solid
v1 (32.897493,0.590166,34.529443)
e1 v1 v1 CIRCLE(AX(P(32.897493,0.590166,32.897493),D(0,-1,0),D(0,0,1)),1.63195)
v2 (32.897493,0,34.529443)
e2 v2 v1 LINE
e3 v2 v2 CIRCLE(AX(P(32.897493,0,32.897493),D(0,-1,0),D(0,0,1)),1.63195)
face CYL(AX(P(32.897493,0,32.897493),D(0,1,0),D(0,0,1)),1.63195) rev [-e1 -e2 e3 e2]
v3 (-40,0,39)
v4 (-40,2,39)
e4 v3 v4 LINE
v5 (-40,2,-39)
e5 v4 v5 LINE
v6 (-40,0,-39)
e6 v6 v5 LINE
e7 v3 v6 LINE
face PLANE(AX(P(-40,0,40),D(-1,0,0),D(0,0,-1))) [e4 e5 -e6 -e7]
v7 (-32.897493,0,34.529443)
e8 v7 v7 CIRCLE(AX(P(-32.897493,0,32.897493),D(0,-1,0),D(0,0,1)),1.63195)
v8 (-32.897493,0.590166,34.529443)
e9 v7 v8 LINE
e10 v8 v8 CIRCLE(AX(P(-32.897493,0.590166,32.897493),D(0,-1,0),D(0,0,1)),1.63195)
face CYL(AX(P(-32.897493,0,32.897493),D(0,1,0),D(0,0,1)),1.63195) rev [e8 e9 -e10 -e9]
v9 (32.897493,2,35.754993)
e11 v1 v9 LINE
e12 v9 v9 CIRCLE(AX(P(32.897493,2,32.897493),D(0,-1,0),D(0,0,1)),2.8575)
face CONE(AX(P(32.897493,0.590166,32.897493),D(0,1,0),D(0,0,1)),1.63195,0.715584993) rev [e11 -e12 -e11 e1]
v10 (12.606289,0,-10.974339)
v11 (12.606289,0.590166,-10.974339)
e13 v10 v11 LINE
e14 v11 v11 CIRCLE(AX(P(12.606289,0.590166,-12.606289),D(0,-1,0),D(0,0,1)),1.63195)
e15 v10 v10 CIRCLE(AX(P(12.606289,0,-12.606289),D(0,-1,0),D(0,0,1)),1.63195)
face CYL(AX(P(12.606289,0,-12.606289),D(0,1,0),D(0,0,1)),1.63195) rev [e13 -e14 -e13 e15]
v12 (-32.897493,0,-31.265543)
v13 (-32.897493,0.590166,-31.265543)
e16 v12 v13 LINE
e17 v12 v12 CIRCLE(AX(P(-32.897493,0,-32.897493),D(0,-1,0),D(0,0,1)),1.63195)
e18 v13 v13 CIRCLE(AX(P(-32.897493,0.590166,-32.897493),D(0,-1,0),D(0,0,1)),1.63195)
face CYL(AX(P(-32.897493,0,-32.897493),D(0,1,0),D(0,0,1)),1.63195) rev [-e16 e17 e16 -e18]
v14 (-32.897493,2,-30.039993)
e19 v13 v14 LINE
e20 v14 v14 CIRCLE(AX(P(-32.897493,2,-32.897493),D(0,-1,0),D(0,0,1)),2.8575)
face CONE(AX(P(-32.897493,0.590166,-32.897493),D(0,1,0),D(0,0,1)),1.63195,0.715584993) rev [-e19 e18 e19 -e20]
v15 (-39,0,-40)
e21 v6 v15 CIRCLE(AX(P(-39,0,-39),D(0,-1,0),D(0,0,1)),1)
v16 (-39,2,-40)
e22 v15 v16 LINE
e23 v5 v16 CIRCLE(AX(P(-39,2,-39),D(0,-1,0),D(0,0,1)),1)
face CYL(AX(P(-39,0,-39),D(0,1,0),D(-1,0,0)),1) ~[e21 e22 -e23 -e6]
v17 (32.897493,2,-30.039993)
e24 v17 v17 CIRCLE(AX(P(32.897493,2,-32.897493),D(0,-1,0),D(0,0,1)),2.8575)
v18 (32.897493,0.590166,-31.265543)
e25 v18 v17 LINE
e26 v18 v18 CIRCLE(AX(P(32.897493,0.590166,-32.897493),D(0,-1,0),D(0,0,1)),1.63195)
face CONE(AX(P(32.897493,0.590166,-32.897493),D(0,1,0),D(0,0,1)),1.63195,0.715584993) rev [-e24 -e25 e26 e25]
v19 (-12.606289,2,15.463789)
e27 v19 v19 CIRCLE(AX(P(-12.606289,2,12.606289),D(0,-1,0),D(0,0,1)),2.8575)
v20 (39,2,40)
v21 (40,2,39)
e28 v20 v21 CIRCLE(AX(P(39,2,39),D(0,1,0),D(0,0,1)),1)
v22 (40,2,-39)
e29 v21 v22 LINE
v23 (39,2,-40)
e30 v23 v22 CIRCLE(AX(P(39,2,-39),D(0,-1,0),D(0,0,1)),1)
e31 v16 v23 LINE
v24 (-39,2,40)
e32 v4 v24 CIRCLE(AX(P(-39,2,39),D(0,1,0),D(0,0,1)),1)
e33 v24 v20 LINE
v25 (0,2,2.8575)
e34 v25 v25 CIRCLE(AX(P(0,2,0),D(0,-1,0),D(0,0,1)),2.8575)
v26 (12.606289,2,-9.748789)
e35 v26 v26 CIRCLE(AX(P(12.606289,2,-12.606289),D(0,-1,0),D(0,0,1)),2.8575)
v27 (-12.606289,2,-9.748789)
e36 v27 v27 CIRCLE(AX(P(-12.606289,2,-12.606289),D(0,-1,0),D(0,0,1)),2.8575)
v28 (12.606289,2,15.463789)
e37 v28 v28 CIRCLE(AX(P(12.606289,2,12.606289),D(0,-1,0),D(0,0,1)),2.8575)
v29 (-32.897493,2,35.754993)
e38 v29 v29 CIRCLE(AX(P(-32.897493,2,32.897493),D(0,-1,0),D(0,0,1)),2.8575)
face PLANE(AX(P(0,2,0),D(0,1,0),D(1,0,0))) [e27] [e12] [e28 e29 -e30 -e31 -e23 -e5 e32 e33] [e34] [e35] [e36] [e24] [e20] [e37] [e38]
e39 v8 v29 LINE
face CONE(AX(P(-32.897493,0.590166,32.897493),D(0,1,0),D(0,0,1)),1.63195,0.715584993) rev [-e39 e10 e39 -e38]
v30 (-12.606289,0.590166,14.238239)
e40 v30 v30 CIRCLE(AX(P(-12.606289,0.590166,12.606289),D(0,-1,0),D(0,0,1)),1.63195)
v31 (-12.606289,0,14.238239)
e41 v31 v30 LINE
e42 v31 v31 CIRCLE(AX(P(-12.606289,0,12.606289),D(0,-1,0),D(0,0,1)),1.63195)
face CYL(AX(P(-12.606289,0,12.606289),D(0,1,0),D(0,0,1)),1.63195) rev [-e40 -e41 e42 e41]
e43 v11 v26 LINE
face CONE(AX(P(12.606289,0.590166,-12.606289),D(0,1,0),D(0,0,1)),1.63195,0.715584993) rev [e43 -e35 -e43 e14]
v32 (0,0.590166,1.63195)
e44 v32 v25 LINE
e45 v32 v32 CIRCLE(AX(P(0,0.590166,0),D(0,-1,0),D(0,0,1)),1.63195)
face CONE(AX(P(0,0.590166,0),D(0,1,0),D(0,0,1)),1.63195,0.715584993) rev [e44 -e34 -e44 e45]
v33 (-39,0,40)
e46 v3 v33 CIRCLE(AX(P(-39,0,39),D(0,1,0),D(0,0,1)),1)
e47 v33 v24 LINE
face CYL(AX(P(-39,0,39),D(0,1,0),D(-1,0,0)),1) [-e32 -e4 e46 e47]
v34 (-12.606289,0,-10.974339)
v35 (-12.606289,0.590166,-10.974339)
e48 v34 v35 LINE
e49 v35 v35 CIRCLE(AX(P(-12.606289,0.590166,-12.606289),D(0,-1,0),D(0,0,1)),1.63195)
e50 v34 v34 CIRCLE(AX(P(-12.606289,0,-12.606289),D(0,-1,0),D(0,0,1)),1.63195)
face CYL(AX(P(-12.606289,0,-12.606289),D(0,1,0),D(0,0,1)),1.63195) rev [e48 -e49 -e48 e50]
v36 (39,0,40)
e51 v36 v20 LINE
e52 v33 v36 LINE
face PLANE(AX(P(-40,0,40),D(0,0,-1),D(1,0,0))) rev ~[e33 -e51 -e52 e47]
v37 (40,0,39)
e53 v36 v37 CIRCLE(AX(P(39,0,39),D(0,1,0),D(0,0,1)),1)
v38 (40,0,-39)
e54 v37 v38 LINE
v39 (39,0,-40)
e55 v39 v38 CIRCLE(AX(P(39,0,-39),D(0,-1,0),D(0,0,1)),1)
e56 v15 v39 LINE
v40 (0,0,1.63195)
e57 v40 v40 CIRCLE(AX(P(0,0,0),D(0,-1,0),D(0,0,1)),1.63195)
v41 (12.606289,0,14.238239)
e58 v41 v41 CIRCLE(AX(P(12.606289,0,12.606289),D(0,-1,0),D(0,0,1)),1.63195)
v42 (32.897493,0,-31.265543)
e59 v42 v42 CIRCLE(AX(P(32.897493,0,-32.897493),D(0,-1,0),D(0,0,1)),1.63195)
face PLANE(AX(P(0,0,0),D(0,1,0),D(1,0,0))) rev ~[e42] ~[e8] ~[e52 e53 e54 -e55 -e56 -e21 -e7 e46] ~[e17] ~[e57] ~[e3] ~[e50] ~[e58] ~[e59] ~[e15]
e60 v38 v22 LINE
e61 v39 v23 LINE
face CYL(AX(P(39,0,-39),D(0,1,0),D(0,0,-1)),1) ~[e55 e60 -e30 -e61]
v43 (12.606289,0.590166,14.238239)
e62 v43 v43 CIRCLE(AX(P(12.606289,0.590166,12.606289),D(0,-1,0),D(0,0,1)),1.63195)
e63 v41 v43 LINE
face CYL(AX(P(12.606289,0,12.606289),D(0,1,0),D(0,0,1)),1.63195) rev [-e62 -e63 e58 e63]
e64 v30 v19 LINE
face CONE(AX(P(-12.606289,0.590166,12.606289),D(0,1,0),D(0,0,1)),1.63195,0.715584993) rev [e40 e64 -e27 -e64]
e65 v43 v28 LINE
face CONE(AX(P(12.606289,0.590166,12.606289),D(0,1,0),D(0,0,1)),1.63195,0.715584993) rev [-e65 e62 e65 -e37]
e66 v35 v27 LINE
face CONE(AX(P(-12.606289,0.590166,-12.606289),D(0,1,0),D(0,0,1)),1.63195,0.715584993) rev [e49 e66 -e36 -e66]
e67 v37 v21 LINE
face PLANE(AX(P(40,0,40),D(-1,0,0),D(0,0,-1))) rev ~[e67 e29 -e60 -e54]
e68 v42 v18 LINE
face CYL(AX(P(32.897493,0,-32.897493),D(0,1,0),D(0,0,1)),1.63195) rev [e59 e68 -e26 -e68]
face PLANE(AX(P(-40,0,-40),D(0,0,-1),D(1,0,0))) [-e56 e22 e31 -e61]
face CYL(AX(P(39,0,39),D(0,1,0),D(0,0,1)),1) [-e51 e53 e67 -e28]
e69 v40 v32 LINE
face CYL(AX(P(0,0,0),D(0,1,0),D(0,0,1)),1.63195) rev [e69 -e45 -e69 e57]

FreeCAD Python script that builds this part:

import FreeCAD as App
import Part
import Sketcher
Q = App.Units.Quantity


def edges_at(feature, points):
    """Names of the edges that pass closest to the given points."""
    edges = feature.Shape.Edges
    near = lambda p: min(range(len(edges)), key=lambda i: edges[i].distToShape(Part.Vertex(*p))[0])
    return sorted({f"Edge{near(p) + 1}" for p in points})

doc = App.newDocument("Part")
body = doc.addObject("PartDesign::Body", "Body")

# Sketch on XZ plane
sketch1 = body.newObject("Sketcher::SketchObject", "Sketch")
sketch1.AttachmentSupport = (doc.getObject("XZ_Plane"), [""])
sketch1.MapMode = "FlatFace"
sketch1.addGeometry([
    Part.LineSegment(App.Vector(-40, -40, 0), App.Vector(-40, 40, 0)),
    Part.LineSegment(App.Vector(-40, 40, 0), App.Vector(40, 40, 0)),
    Part.LineSegment(App.Vector(40, 40, 0), App.Vector(40, -40, 0)),
    Part.LineSegment(App.Vector(40, -40, 0), App.Vector(-40, -40, 0)),
], False)
sketch1.addConstraint([
    Sketcher.Constraint("Coincident", 0, 2, 1, 1),
    Sketcher.Constraint("Coincident", 1, 2, 2, 1),
    Sketcher.Constraint("Coincident", 2, 2, 3, 1),
    Sketcher.Constraint("Coincident", 3, 2, 0, 1),
    Sketcher.Constraint("Vertical", 0),
    Sketcher.Constraint("Horizontal", 1),
    Sketcher.Constraint("Vertical", 2),
    Sketcher.Constraint("Horizontal", 3),
    Sketcher.Constraint("Symmetric", 0, 2, 2, 2, -1, 1),
    Sketcher.Constraint("Equal", 3, 0),
    Sketcher.Constraint("DistanceX", 1, 1, 1, 2, Q("80 mm")),
])
pad1 = body.newObject("PartDesign::Pad", "Pad")
pad1.Profile = sketch1
pad1.Length = 2
pad1.Reversed = True

# Sketch on YZ plane
sketch2 = body.newObject("Sketcher::SketchObject", "Sketch001")
sketch2.AttachmentSupport = (doc.getObject("YZ_Plane"), [""])
sketch2.MapMode = "FlatFace"
sketch2.AttachmentOffset = App.Placement(App.Vector(0, 0, -32.897493), App.Rotation())
sketch2.addGeometry([
    Part.LineSegment(App.Vector(0, -32.9, 0), App.Vector(2, -32.9, 0)),  # 0
    Part.LineSegment(App.Vector(2, -32.9, 0), App.Vector(2, -30, 0)),  # 1
    Part.LineSegment(App.Vector(2, -30, 0), App.Vector(0.6, -31.3, 0)),  # 2
    Part.LineSegment(App.Vector(0.6, -31.3, 0), App.Vector(0, -31.3, 0)),  # 3
    Part.LineSegment(App.Vector(0, -31.3, 0), App.Vector(0, -32.9, 0)),  # 4
], False)
sketch2.addGeometry(Part.LineSegment(App.Vector(2, -32.9, 0), App.Vector(0, -32.9, 0)), True)  # axis
sketch2.addConstraint([
    Sketcher.Constraint("Coincident", 0, 2, 1, 1),
    Sketcher.Constraint("Coincident", 1, 2, 2, 1),
    Sketcher.Constraint("Coincident", 2, 2, 3, 1),
    Sketcher.Constraint("Coincident", 3, 2, 4, 1),
    Sketcher.Constraint("Coincident", 4, 2, 0, 1),
    Sketcher.Constraint("Horizontal", 0),
    Sketcher.Constraint("Vertical", 1),
    Sketcher.Constraint("Horizontal", 3),
    Sketcher.Constraint("Vertical", 4),
    Sketcher.Constraint("Horizontal", 5),
    Sketcher.Constraint("Coincident", 5, 1, 0, 2),
    Sketcher.Constraint("PointOnObject", 3, 2, -2),
    Sketcher.Constraint("PointOnObject", 5, 2, -2),
    Sketcher.Constraint("DistanceX", 0, 1, 0, 2, Q("2 mm")),
    Sketcher.Constraint("Angle", 2, Q("-139 deg")),
    Sketcher.Constraint("DistanceY", 1, 1, 1, 2, Q("2.8575 mm")),
    Sketcher.Constraint("DistanceY", 4, 2, 4, 1, Q("1.63195 mm")),
    Sketcher.Constraint("DistanceY", 0, 2, -1, 1, Q("32.897493 mm")),
])
groove = body.newObject("PartDesign::Groove", "Groove")
groove.Profile = sketch2
groove.ReferenceAxis = (sketch2, ["Axis0"])
groove.Angle = 360
doc.recompute()

linearpattern = body.newObject("PartDesign::LinearPattern", "LinearPattern")
linearpattern.Originals = [groove]
linearpattern.Direction = (doc.getObject("X_Axis"), [""])
linearpattern.Mode = "offset"
linearpattern.Offset = 65.794986
linearpattern.Occurrences = 2
body.Tip = linearpattern
doc.recompute()

datumline = body.newObject("PartDesign::Line", "DatumLine")
datumline.Placement = App.Placement(App.Vector(0, 0, 0), App.Rotation(App.Vector(0, 0, 1), App.Vector(0.707106781, 0, 0.707106781)))
linearpattern2 = body.newObject("PartDesign::LinearPattern", "LinearPattern001")
linearpattern2.Originals = [groove]
linearpattern2.Direction = (datumline, [""])
linearpattern2.Mode = "offset"
linearpattern2.Offset = 93.048162
linearpattern2.Occurrences = 2
body.Tip = linearpattern2
doc.recompute()

linearpattern3 = body.newObject("PartDesign::LinearPattern", "LinearPattern002")
linearpattern3.Originals = [groove]
linearpattern3.Direction = (doc.getObject("Z_Axis"), [""])
linearpattern3.Mode = "offset"
linearpattern3.Offset = 65.794986
linearpattern3.Occurrences = 2
body.Tip = linearpattern3

# Sketch on YZ plane
sketch3 = body.newObject("Sketcher::SketchObject", "Sketch002")
sketch3.AttachmentSupport = (doc.getObject("YZ_Plane"), [""])
sketch3.MapMode = "FlatFace"
sketch3.addGeometry([
    Part.LineSegment(App.Vector(0, 0, 0), App.Vector(2, 0, 0)),  # 0
    Part.LineSegment(App.Vector(2, 0, 0), App.Vector(2, 2.9, 0)),  # 1
    Part.LineSegment(App.Vector(2, 2.9, 0), App.Vector(0.6, 1.6, 0)),  # 2
    Part.LineSegment(App.Vector(0.6, 1.6, 0), App.Vector(0, 1.6, 0)),  # 3
    Part.LineSegment(App.Vector(0, 1.6, 0), App.Vector(0, 0, 0)),  # 4
], False)
sketch3.addConstraint([
    Sketcher.Constraint("Coincident", 0, 2, 1, 1),
    Sketcher.Constraint("Coincident", 1, 2, 2, 1),
    Sketcher.Constraint("Coincident", 2, 2, 3, 1),
    Sketcher.Constraint("Coincident", 3, 2, 4, 1),
    Sketcher.Constraint("Coincident", 4, 2, 0, 1),
    Sketcher.Constraint("Horizontal", 0),
    Sketcher.Constraint("Vertical", 1),
    Sketcher.Constraint("Horizontal", 3),
    Sketcher.Constraint("Vertical", 4),
    Sketcher.Constraint("Coincident", 4, 2, -1, 1),
    Sketcher.Constraint("DistanceX", 0, 1, 0, 2, Q("2 mm")),
    Sketcher.Constraint("Angle", 2, Q("-139 deg")),
    Sketcher.Constraint("DistanceY", 1, 1, 1, 2, Q("2.8575 mm")),
    Sketcher.Constraint("DistanceY", 4, 2, 4, 1, Q("1.63195 mm")),
])
groove2 = body.newObject("PartDesign::Groove", "Groove001")
groove2.Profile = sketch3
groove2.ReferenceAxis = (sketch3, ["H_Axis"])
groove2.Angle = 360

# Sketch on YZ plane
sketch4 = body.newObject("Sketcher::SketchObject", "Sketch003")
sketch4.AttachmentSupport = (doc.getObject("YZ_Plane"), [""])
sketch4.MapMode = "FlatFace"
sketch4.AttachmentOffset = App.Placement(App.Vector(0, 0, -12.606289), App.Rotation())
sketch4.addGeometry([
    Part.LineSegment(App.Vector(0, -12.6, 0), App.Vector(2, -12.6, 0)),  # 0
    Part.LineSegment(App.Vector(2, -12.6, 0), App.Vector(2, -9.7, 0)),  # 1
    Part.LineSegment(App.Vector(2, -9.7, 0), App.Vector(0.6, -11, 0)),  # 2
    Part.LineSegment(App.Vector(0.6, -11, 0), App.Vector(0, -11, 0)),  # 3
    Part.LineSegment(App.Vector(0, -11, 0), App.Vector(0, -12.6, 0)),  # 4
], False)
sketch4.addGeometry(Part.LineSegment(App.Vector(2, -12.6, 0), App.Vector(0, -12.6, 0)), True)  # axis
sketch4.addConstraint([
    Sketcher.Constraint("Coincident", 0, 2, 1, 1),
    Sketcher.Constraint("Coincident", 1, 2, 2, 1),
    Sketcher.Constraint("Coincident", 2, 2, 3, 1),
    Sketcher.Constraint("Coincident", 3, 2, 4, 1),
    Sketcher.Constraint("Coincident", 4, 2, 0, 1),
    Sketcher.Constraint("Horizontal", 0),
    Sketcher.Constraint("Vertical", 1),
    Sketcher.Constraint("Horizontal", 3),
    Sketcher.Constraint("Vertical", 4),
    Sketcher.Constraint("Horizontal", 5),
    Sketcher.Constraint("Coincident", 5, 1, 0, 2),
    Sketcher.Constraint("PointOnObject", 3, 2, -2),
    Sketcher.Constraint("PointOnObject", 5, 2, -2),
    Sketcher.Constraint("DistanceX", 0, 1, 0, 2, Q("2 mm")),
    Sketcher.Constraint("Angle", 2, Q("-139 deg")),
    Sketcher.Constraint("DistanceY", 1, 1, 1, 2, Q("2.8575 mm")),
    Sketcher.Constraint("DistanceY", 4, 2, 4, 1, Q("1.63195 mm")),
    Sketcher.Constraint("DistanceY", 0, 2, -1, 1, Q("12.606289 mm")),
])
groove3 = body.newObject("PartDesign::Groove", "Groove002")
groove3.Profile = sketch4
groove3.ReferenceAxis = (sketch4, ["Axis0"])
groove3.Angle = 360
doc.recompute()

linearpattern4 = body.newObject("PartDesign::LinearPattern", "LinearPattern003")
linearpattern4.Originals = [groove3]
linearpattern4.Direction = (doc.getObject("X_Axis"), [""])
linearpattern4.Mode = "offset"
linearpattern4.Offset = 25.212578
linearpattern4.Occurrences = 2
body.Tip = linearpattern4
doc.recompute()

datumline2 = body.newObject("PartDesign::Line", "DatumLine001")
datumline2.Placement = App.Placement(App.Vector(0, 0, 0), App.Rotation(App.Vector(0, 0, 1), App.Vector(0.707106781, 0, 0.707106781)))
linearpattern5 = body.newObject("PartDesign::LinearPattern", "LinearPattern004")
linearpattern5.Originals = [groove3]
linearpattern5.Direction = (datumline2, [""])
linearpattern5.Mode = "offset"
linearpattern5.Offset = 35.65597
linearpattern5.Occurrences = 2
body.Tip = linearpattern5
doc.recompute()

linearpattern6 = body.newObject("PartDesign::LinearPattern", "LinearPattern005")
linearpattern6.Originals = [groove3]
linearpattern6.Direction = (doc.getObject("Z_Axis"), [""])
linearpattern6.Mode = "offset"
linearpattern6.Offset = 25.212578
linearpattern6.Occurrences = 2
body.Tip = linearpattern6
doc.recompute()

fillet = body.newObject("PartDesign::Fillet", "Fillet")
fillet.Base = (linearpattern6, edges_at(linearpattern6, [(-40, 1, 40)]))
fillet.Radius = 1
doc.recompute()

fillet2 = body.newObject("PartDesign::Fillet", "Fillet001")
fillet2.Base = (fillet, edges_at(fillet, [(40, 1, 40), (-40, 1, -40), (40, 1, -40)]))
fillet2.Radius = 1

doc.recompute()
